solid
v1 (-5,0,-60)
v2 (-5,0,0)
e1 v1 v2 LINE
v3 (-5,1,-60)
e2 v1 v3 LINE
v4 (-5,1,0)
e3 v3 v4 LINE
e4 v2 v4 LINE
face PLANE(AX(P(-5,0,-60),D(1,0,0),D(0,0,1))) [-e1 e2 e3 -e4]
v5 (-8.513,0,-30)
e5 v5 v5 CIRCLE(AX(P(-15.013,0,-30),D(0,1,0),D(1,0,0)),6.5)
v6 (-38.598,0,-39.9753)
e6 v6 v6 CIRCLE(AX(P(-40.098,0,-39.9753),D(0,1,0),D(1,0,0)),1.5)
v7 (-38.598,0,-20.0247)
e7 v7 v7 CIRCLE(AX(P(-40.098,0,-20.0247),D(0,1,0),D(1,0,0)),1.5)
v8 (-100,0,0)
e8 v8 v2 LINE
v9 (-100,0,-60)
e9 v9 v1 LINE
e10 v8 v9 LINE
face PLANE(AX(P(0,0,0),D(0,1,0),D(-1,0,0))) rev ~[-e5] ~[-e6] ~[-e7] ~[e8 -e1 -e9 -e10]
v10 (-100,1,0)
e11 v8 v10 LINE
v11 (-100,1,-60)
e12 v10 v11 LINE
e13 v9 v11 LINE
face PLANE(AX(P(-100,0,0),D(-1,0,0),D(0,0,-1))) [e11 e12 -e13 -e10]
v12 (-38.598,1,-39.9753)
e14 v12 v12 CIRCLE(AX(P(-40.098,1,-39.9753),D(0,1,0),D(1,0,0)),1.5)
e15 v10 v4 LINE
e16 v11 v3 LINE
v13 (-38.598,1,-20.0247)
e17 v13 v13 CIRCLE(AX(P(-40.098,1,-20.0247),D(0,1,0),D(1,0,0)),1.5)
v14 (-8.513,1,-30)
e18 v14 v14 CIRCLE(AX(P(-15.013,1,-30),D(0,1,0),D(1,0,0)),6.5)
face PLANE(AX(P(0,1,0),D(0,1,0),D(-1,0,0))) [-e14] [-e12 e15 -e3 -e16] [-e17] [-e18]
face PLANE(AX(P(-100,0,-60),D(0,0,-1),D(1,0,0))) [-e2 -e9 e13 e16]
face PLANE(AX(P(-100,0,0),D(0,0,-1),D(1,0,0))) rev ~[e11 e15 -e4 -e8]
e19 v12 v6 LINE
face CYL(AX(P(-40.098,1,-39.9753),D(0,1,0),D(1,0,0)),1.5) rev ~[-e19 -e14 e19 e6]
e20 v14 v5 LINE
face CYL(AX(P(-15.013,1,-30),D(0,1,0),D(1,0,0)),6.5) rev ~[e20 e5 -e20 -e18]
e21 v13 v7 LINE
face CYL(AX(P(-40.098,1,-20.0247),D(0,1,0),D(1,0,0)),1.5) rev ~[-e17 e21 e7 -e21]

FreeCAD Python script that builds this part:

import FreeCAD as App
import Part
import Sketcher

V = App.Vector

doc = App.newDocument("Part")
body = doc.addObject("PartDesign::Body", "Body")

sketch1 = body.newObject("Sketcher::SketchObject", "Sketch")
sketch1.AttachmentSupport = (doc.getObject("XZ_Plane"), [""])
sketch1.MapMode = "FlatFace"
sketch1.addGeometry([
    Part.LineSegment(V(-100, -60, 0), V(-100, 0, 0)),
    Part.LineSegment(V(-100, 0, 0), V(-5, 0, 0)),
    Part.LineSegment(V(-5, 0, 0), V(-5, -60, 0)),
    Part.LineSegment(V(-5, -60, 0), V(-100, -60, 0)),
], False)
sketch1.addConstraint([
    Sketcher.Constraint("Coincident", 0, 2, 1, 1),
    Sketcher.Constraint("Coincident", 1, 2, 2, 1),
    Sketcher.Constraint("Coincident", 2, 2, 3, 1),
    Sketcher.Constraint("Coincident", 3, 2, 0, 1),
    Sketcher.Constraint("Vertical", 0),
    Sketcher.Constraint("Horizontal", 1),
    Sketcher.Constraint("Vertical", 2),
    Sketcher.Constraint("Horizontal", 3),
    Sketcher.Constraint("PointOnObject", 0, 2, -1),
    Sketcher.Constraint("DistanceY", 0, 1, 0, 2, 60.0),
    Sketcher.Constraint("DistanceX", 1, 1, 1, 2, 95.0),
    Sketcher.Constraint("DistanceX", 0, 2, -1, 1, 100.0),
])
pad1 = body.newObject("PartDesign::Pad", "Pad")
pad1.Profile = sketch1
pad1.Length = 1
pad1.Reversed = True

sketch2 = body.newObject("Sketcher::SketchObject", "Sketch001")
sketch2.AttachmentSupport = (doc.getObject("XZ_Plane"), [""])
sketch2.MapMode = "FlatFace"
sketch2.AttachmentOffset = App.Placement(V(0, 0, -1), App.Rotation())
sketch2.addGeometry([
    Part.Circle(V(-40.1, -20, 0), V(0, 0, 1), 1.5),
    Part.Circle(V(-40.1, -40, 0), V(0, 0, 1), 1.5),
    Part.Circle(V(-15, -30, 0), V(0, 0, 1), 6.5),
], False)
sketch2.addConstraint([
    Sketcher.Constraint("Equal", 0, 1),
    Sketcher.Constraint("Vertical", 0, 3, 1, 3),
    Sketcher.Constraint("Diameter", 0, 3.0),
    Sketcher.Constraint("Diameter", 2, 13.0),
    Sketcher.Constraint("DistanceY", 2, 3, -1, 1, 30.0),
    Sketcher.Constraint("DistanceX", 0, 3, -1, 1, 40.098),
    Sketcher.Constraint("DistanceX", 2, 3, -1, 1, 15.013),
    Sketcher.Constraint("DistanceY", 0, 3, -1, 1, 20.0247),
    Sketcher.Constraint("DistanceY", 1, 3, -1, 1, 39.9753),
])
pocket1 = body.newObject("PartDesign::Pocket", "Pocket")
pocket1.Profile = sketch2
pocket1.Length = 1
pocket1.Reversed = True

doc.recompute()
